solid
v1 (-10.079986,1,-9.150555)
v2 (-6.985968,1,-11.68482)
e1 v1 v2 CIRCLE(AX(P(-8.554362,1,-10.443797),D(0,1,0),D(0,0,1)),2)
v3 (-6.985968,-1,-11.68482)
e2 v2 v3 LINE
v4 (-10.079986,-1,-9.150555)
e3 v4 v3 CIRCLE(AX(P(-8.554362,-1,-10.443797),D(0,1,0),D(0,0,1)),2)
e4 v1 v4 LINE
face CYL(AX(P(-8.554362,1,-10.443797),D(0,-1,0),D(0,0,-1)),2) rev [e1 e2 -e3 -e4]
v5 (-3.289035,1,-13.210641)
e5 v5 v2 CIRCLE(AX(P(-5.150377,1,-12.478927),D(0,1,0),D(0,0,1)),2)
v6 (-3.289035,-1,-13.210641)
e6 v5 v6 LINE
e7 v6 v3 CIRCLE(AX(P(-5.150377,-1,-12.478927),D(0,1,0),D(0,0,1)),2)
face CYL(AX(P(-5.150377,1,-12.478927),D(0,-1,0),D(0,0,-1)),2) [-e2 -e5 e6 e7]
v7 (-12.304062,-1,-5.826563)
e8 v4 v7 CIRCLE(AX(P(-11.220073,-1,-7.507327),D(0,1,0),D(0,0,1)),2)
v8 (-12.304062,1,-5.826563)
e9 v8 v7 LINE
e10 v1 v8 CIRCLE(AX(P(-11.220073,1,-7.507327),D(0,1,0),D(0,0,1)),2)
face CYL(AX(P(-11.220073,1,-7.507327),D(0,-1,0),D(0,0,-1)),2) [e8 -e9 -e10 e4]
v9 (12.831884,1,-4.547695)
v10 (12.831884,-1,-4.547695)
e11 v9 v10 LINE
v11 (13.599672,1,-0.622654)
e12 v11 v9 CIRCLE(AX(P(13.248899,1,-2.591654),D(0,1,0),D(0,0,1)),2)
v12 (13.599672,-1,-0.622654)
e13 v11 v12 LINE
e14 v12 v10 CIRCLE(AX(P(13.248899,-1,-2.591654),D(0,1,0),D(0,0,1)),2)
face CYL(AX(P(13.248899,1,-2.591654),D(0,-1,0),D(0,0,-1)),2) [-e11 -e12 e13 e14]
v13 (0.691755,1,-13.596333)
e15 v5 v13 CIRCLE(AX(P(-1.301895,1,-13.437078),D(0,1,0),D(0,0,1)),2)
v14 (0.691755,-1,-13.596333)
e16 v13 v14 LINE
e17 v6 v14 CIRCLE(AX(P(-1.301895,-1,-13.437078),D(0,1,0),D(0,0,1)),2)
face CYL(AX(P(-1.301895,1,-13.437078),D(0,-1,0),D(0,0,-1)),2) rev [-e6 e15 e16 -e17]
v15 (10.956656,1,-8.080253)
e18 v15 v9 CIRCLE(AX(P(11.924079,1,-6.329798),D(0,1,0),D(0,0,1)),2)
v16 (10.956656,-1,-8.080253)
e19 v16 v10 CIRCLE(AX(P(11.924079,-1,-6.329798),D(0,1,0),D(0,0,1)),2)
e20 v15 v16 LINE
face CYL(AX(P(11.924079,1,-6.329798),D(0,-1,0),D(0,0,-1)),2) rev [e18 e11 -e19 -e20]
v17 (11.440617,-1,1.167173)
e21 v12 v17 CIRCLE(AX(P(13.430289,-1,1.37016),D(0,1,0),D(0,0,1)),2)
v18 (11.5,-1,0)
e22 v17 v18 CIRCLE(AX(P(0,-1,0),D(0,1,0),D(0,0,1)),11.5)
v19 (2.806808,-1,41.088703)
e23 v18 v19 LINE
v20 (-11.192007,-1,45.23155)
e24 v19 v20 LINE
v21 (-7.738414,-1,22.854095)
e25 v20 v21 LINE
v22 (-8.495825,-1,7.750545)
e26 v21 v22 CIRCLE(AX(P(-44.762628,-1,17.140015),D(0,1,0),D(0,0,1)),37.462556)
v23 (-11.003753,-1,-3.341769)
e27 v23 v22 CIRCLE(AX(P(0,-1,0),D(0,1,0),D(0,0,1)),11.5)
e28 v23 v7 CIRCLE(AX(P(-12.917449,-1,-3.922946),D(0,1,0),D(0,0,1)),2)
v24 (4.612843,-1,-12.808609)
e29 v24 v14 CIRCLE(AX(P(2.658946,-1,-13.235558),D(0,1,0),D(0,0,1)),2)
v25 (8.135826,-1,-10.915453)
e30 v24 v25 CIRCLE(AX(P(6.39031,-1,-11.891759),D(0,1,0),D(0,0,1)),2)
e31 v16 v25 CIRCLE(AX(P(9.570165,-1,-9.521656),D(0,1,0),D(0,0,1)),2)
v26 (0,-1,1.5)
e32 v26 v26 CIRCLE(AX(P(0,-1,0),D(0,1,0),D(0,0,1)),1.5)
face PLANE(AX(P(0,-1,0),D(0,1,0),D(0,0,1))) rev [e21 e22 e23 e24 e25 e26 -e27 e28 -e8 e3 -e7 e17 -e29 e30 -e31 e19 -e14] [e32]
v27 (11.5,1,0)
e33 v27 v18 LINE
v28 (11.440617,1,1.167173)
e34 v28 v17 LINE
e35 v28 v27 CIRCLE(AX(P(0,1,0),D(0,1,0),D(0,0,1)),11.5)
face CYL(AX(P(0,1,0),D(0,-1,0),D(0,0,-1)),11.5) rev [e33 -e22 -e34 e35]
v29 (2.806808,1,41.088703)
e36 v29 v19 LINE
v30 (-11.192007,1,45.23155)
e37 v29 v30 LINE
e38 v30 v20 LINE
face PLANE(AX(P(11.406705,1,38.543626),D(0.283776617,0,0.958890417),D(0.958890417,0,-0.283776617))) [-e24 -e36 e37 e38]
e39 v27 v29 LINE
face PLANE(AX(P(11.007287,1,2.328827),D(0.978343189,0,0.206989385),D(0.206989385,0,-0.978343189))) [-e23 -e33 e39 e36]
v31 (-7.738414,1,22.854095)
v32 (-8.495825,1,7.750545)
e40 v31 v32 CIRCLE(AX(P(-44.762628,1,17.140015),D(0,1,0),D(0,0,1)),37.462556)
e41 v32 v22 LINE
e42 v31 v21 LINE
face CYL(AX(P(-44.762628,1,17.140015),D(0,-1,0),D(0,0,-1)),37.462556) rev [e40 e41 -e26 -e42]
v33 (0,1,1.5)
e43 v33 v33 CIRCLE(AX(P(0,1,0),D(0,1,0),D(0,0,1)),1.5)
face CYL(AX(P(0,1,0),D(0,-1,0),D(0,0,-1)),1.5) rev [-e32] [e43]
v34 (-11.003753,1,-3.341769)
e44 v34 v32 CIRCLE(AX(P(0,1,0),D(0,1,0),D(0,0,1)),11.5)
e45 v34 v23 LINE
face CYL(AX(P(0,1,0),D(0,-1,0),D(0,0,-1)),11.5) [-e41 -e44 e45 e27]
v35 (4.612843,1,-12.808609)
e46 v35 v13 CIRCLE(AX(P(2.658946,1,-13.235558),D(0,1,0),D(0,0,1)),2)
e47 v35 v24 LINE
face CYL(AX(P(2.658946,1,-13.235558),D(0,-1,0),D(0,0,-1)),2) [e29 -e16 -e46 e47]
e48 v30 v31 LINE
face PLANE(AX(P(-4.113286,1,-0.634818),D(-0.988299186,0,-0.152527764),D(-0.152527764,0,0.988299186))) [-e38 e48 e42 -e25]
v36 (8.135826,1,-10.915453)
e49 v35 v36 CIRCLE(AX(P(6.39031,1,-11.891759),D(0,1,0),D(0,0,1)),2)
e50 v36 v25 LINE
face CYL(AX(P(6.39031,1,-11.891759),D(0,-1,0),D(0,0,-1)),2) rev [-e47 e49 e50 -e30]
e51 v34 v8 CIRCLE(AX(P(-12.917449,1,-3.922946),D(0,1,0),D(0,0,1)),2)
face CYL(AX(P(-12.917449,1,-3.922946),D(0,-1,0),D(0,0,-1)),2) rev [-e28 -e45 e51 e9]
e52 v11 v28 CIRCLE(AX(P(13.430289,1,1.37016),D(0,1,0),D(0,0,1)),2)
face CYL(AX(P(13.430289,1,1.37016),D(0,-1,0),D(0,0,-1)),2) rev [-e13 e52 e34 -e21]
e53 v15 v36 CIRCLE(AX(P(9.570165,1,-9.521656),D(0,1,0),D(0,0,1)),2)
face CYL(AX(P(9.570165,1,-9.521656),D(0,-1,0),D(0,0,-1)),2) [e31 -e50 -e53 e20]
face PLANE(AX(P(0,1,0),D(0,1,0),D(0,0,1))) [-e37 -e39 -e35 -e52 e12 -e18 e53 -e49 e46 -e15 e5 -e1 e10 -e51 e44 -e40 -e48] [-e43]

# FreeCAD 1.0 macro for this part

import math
import FreeCAD as App
import Part
import Sketcher
from FreeCAD import Vector

doc = App.newDocument("Part")
params = doc.addObject("Spreadsheet::Sheet", "Params")
for row, (alias, value) in enumerate([
    ("sketch1_diameter", "3 mm"),
    ("sketch1_radius", "2 mm"),
    ("sketch1_radius2", "11.5 mm"),
    ("pad1_length", "2 mm"),
    ("sketch2_radius", "11.5 mm"),
    ("pad2_length", "2 mm"),
], start=1):
    params.set(f"A{row}", alias)
    params.set(f"B{row}", "=" + value)
    params.setAlias(f"B{row}", alias)

body = doc.addObject("PartDesign::Body", "Body")

# Sketch on XZ plane
sketch1 = body.newObject("Sketcher::SketchObject", "Sketch")
sketch1.AttachmentSupport = (doc.getObject("XZ_Plane"), [""])
sketch1.MapMode = "FlatFace"
sketch1.addGeometry(Part.LineSegment(Vector(10.514574, 4.657653, 0), Vector(11.5, 0, 0)), False)
sketch1.addGeometry(Part.ArcOfCircle(Part.Circle(Vector(0, 0, 0), Vector(0, 0, 1), 11.5), math.radians(0), math.radians(5.82517)), False)
sketch1.addGeometry(Part.ArcOfCircle(Part.Circle(Vector(13.430289, 1.37016, 0), Vector(0, 0, 1), 2), math.radians(-174.174832), math.radians(-85.141707)), False)
sketch1.addGeometry(Part.ArcOfCircle(Part.Circle(Vector(13.248899, -2.591654, 0), Vector(0, 0, 1), 2), math.radians(-102.034904), math.radians(79.898849)), False)
sketch1.addGeometry(Part.ArcOfCircle(Part.Circle(Vector(11.924079, -6.329798, 0), Vector(0, 0, 1), 2), math.radians(63.005652), math.radians(241.071899)), False)
sketch1.addGeometry(Part.ArcOfCircle(Part.Circle(Vector(9.570165, -9.521656, 0), Vector(0, 0, 1), 2), math.radians(-135.821299), math.radians(46.112455)), False)
sketch1.addGeometry(Part.ArcOfCircle(Part.Circle(Vector(6.39031, -11.891759, 0), Vector(0, 0, 1), 2), math.radians(29.219258), math.radians(207.285504)), False)
sketch1.addGeometry(Part.ArcOfCircle(Part.Circle(Vector(2.658946, -13.235558, 0), Vector(0, 0, 1), 2), math.radians(-169.607693), math.radians(12.32606)), False)
sketch1.addGeometry(Part.ArcOfCircle(Part.Circle(Vector(-1.301895, -13.437078, 0), Vector(0, 0, 1), 2), math.radians(-4.567137), math.radians(173.49911)), False)
sketch1.addGeometry(Part.ArcOfCircle(Part.Circle(Vector(-5.150377, -12.478927, 0), Vector(0, 0, 1), 2), math.radians(156.605912), math.radians(338.539666)), False)
sketch1.addGeometry(Part.ArcOfCircle(Part.Circle(Vector(-8.554362, -10.443797, 0), Vector(0, 0, 1), 2), math.radians(-38.353532), math.radians(139.712715)), False)
sketch1.addGeometry(Part.ArcOfCircle(Part.Circle(Vector(-11.220073, -7.507327, 0), Vector(0, 0, 1), 2), math.radians(122.819518), math.radians(304.753271)), False)
sketch1.addGeometry(Part.ArcOfCircle(Part.Circle(Vector(-12.917449, -3.922946, 0), Vector(0, 0, 1), 2), math.radians(-72.139926), math.radians(16.893198)), False)
sketch1.addGeometry(Part.ArcOfCircle(Part.Circle(Vector(0, 0, 0), Vector(0, 0, 1), 11.5), math.radians(23.891961), math.radians(196.893197)), False)
sketch1.addGeometry(Part.Circle(Vector(0, 0, 0), Vector(0, 0, 1), 1.5), False)
sketch1.addConstraint(Sketcher.Constraint("Coincident", 0, 2, 1, 1))
sketch1.addConstraint(Sketcher.Constraint("Tangent", 1, 2, 2, 1))
sketch1.addConstraint(Sketcher.Constraint("Coincident", 2, 2, 3, 2))
sketch1.addConstraint(Sketcher.Constraint("Coincident", 3, 1, 4, 1))
sketch1.addConstraint(Sketcher.Constraint("Coincident", 4, 2, 5, 2))
sketch1.addConstraint(Sketcher.Constraint("Coincident", 5, 1, 6, 1))
sketch1.addConstraint(Sketcher.Constraint("Coincident", 6, 2, 7, 2))
sketch1.addConstraint(Sketcher.Constraint("Coincident", 7, 1, 8, 1))
sketch1.addConstraint(Sketcher.Constraint("Coincident", 8, 2, 9, 2))
sketch1.addConstraint(Sketcher.Constraint("Coincident", 9, 1, 10, 1))
sketch1.addConstraint(Sketcher.Constraint("Coincident", 10, 2, 11, 2))
sketch1.addConstraint(Sketcher.Constraint("Coincident", 11, 1, 12, 1))
sketch1.addConstraint(Sketcher.Constraint("Tangent", 12, 2, 13, 2))
sketch1.addConstraint(Sketcher.Constraint("Coincident", 13, 1, 0, 1))
sketch1.addConstraint(Sketcher.Constraint("Coincident", 1, 3, -1, 1))
sketch1.addConstraint(Sketcher.Constraint("Coincident", 13, 3, -1, 1))
sketch1.addConstraint(Sketcher.Constraint("Coincident", 14, 3, -1, 1))
sketch1.addConstraint(Sketcher.Constraint("Equal", 2, 3))
sketch1.addConstraint(Sketcher.Constraint("Equal", 3, 4))
sketch1.addConstraint(Sketcher.Constraint("Equal", 4, 5))
sketch1.addConstraint(Sketcher.Constraint("Equal", 5, 6))
sketch1.addConstraint(Sketcher.Constraint("Equal", 6, 7))
sketch1.addConstraint(Sketcher.Constraint("Equal", 7, 8))
sketch1.addConstraint(Sketcher.Constraint("Equal", 8, 9))
sketch1.addConstraint(Sketcher.Constraint("Equal", 9, 10))
sketch1.addConstraint(Sketcher.Constraint("Equal", 10, 11))
sketch1.addConstraint(Sketcher.Constraint("Equal", 11, 12))
sketch1.addConstraint(Sketcher.Constraint("Equal", 1, 13))
sketch1.addConstraint(Sketcher.Constraint("PointOnObject", 0, 2, -1))
sketch1.addConstraint(Sketcher.Constraint("Diameter", 14, 3.0))
sketch1.addConstraint(Sketcher.Constraint("Radius", 2, 2.0))
sketch1.addConstraint(Sketcher.Constraint("Radius", 1, 11.5))
sketch1.addConstraint(Sketcher.Constraint("DistanceY", 3, 3, 2, 2, 1.968999))
sketch1.addConstraint(Sketcher.Constraint("DistanceX", -1, 1, 3, 3, 13.248899))
sketch1.addConstraint(Sketcher.Constraint("DistanceY", 7, 3, 6, 3, 1.343799))
sketch1.addConstraint(Sketcher.Constraint("DistanceY", 9, 3, 11, 3, 4.9716))
sketch1.addConstraint(Sketcher.Constraint("DistanceY", 4, 2, 3, 3, 5.488599))
sketch1.addConstraint(Sketcher.Constraint("DistanceY", 5, 1, 4, 2, 2.835201))
sketch1.addConstraint(Sketcher.Constraint("DistanceX", 11, 1, 10, 3, 3.7497))
sketch1.addConstraint(Sketcher.Constraint("DistanceX", 13, 1, 2, 2, 3.085098))
sketch1.addConstraint(Sketcher.Constraint("DistanceX", -1, 1, 2, 3, 13.430289))
sketch1.addConstraint(Sketcher.Constraint("DistanceX", -1, 1, 4, 3, 11.924079))
sketch1.addConstraint(Sketcher.Constraint("DistanceX", -1, 1, 6, 3, 6.39031))
sketch1.addConstraint(Sketcher.Constraint("DistanceY", 6, 3, -1, 1, 11.891759))
sketch1.addConstraint(Sketcher.Constraint("DistanceY", 8, 3, -1, 1, 13.437078))
sketch1.addConstraint(Sketcher.Constraint("DistanceX", 12, 3, -1, 1, 12.917449))
sketch1.addConstraint(Sketcher.Constraint("DistanceY", 6, 2, -1, 1, 12.808609))
sketch1.addConstraint(Sketcher.Constraint("DistanceY", 8, 2, -1, 1, 13.210641))
sketch1.addConstraint(Sketcher.Constraint("DistanceX", 9, 1, -1, 1, 6.985968))
sketch1.addConstraint(Sketcher.Constraint("DistanceY", 9, 1, -1, 1, 11.68482))
sketch1.addConstraint(Sketcher.Constraint("DistanceY", 5, 3, 4, 3, 3.191858))
sketch1.addConstraint(Sketcher.Constraint("DistanceX", 8, 3, 7, 3, 3.960841))
sketch1.addConstraint(Sketcher.Constraint("DistanceY", 9, 3, 10, 3, 2.03513))
sketch1.setExpression("Constraints[29]", "Params.sketch1_diameter")
sketch1.setExpression("Constraints[30]", "Params.sketch1_radius")
sketch1.setExpression("Constraints[31]", "Params.sketch1_radius2")
pad1 = body.newObject("PartDesign::Pad", "Pad")
pad1.Profile = sketch1
pad1.setExpression("Length", "Params.pad1_length")
pad1.Midplane = True

# Sketch on XZ plane
sketch2 = body.newObject("Sketcher::SketchObject", "Sketch001")
sketch2.AttachmentSupport = (doc.getObject("XZ_Plane"), [""])
sketch2.MapMode = "FlatFace"
sketch2.addGeometry(Part.LineSegment(Vector(2.806808, 41.088703, 0), Vector(10.514574, 4.657653, 0)), False)
sketch2.addGeometry(Part.ArcOfCircle(Part.Circle(Vector(0, 0, 0), Vector(0, 0, 1), 11.5), math.radians(23.891961), math.radians(137.626524)), False)
sketch2.addGeometry(Part.ArcOfCircle(Part.Circle(Vector(-44.762628, 17.140015, 0), Vector(0, 0, 1), 37.462556), math.radians(-14.515158), math.radians(8.773443)), False)
sketch2.addGeometry(Part.LineSegment(Vector(-7.738414, 22.854095, 0), Vector(-11.192007, 45.23155, 0)), False)
sketch2.addGeometry(Part.LineSegment(Vector(-11.192007, 45.23155, 0), Vector(2.806808, 41.088703, 0)), False)
sketch2.addConstraint(Sketcher.Constraint("Coincident", 0, 2, 1, 1))
sketch2.addConstraint(Sketcher.Constraint("Coincident", 1, 2, 2, 1))
sketch2.addConstraint(Sketcher.Constraint("Tangent", 2, 2, 3, 1))
sketch2.addConstraint(Sketcher.Constraint("Coincident", 3, 2, 4, 1))
sketch2.addConstraint(Sketcher.Constraint("Coincident", 4, 2, 0, 1))
sketch2.addConstraint(Sketcher.Constraint("Coincident", 1, 3, -1, 1))
sketch2.addConstraint(Sketcher.Constraint("Radius", 1, 11.5))
sketch2.addConstraint(Sketcher.Constraint("Radius", 2, 37.462556))
sketch2.addConstraint(Sketcher.Constraint("DistanceX", 1, 2, 0, 2, 19.010399))
sketch2.addConstraint(Sketcher.Constraint("Distance", 3, 22.64239))
sketch2.addConstraint(Sketcher.Constraint("DistanceY", -1, 1, 3, 2, 45.23155))
sketch2.addConstraint(Sketcher.Constraint("DistanceY", 0, 2, 2, 3, 12.482362))
sketch2.addConstraint(Sketcher.Constraint("DistanceY", 1, 2, 2, 3, 9.38947))
sketch2.addConstraint(Sketcher.Constraint("DistanceX", 2, 2, 4, 2, 10.545222))
sketch2.addConstraint(Sketcher.Constraint("DistanceY", 2, 2, 4, 2, 18.234608))
sketch2.setExpression("Constraints[6]", "Params.sketch2_radius")
pad2 = body.newObject("PartDesign::Pad", "Pad001")
pad2.Profile = sketch2
pad2.setExpression("Length", "Params.pad2_length")
pad2.Midplane = True

doc.recompute()
